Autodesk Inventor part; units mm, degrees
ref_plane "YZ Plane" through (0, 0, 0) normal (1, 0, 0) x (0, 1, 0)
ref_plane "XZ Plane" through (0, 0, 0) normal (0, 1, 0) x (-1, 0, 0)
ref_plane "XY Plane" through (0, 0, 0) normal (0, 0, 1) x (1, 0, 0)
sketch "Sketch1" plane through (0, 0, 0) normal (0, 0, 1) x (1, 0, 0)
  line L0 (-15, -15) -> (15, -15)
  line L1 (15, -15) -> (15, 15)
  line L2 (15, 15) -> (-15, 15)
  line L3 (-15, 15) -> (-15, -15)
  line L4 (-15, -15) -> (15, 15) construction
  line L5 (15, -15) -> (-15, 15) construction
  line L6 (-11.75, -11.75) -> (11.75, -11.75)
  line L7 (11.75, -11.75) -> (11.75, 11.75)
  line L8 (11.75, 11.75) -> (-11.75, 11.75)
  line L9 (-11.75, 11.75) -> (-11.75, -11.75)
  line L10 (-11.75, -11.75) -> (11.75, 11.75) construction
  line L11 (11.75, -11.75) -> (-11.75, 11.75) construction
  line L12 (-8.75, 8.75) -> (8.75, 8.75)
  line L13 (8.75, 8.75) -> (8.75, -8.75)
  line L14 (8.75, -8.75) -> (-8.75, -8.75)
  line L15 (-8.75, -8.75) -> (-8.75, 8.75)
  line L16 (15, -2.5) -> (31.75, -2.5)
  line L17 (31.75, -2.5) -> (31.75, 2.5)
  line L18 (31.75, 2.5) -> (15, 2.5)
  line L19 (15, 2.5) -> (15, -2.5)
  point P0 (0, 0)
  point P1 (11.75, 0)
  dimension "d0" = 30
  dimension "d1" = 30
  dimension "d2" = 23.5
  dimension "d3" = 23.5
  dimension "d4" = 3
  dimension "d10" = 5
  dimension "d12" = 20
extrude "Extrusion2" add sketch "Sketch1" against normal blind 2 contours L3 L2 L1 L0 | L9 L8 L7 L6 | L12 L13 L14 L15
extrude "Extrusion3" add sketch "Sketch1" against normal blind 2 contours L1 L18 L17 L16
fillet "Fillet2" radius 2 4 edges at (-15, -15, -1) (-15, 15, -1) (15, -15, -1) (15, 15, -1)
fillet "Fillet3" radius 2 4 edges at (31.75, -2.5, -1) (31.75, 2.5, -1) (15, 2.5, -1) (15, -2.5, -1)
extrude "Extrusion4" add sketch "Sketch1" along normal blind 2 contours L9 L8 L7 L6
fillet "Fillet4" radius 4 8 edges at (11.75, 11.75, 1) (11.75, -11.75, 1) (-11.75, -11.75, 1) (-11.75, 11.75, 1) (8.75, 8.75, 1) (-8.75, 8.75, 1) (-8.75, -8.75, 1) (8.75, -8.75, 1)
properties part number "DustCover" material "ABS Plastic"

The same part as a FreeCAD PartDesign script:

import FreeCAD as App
import Part
import Sketcher

V = App.Vector
Q = App.Units.Quantity


def edges_at(feature, points):
    """Names of the edges that pass closest to the given points."""
    edges = feature.Shape.Edges
    near = lambda p: min(range(len(edges)), key=lambda i: edges[i].distToShape(Part.Vertex(*p))[0])
    return sorted({f"Edge{near(p) + 1}" for p in points})

doc = App.newDocument("Part")
body = doc.addObject("PartDesign::Body", "Body")

# Sketch on XY plane
sketch1 = body.newObject("Sketcher::SketchObject", "Sketch")
sketch1.AttachmentSupport = (doc.getObject("XY_Plane"), [""])
sketch1.MapMode = "FlatFace"
sketch1.addGeometry(Part.LineSegment(V(-15, 15, 0), V(-15, -15, 0)), False)
sketch1.addGeometry(Part.LineSegment(V(-15, -15, 0), V(15, -15, 0)), False)
sketch1.addGeometry(Part.LineSegment(V(15, -15, 0), V(15, 15, 0)), False)
sketch1.addGeometry(Part.LineSegment(V(15, 15, 0), V(-15, 15, 0)), False)
sketch1.addConstraint(Sketcher.Constraint("Coincident", 0, 2, 1, 1))
sketch1.addConstraint(Sketcher.Constraint("Coincident", 1, 2, 2, 1))
sketch1.addConstraint(Sketcher.Constraint("Coincident", 2, 2, 3, 1))
sketch1.addConstraint(Sketcher.Constraint("Coincident", 3, 2, 0, 1))
sketch1.addConstraint(Sketcher.Constraint("Vertical", 0))
sketch1.addConstraint(Sketcher.Constraint("Horizontal", 1))
sketch1.addConstraint(Sketcher.Constraint("Vertical", 2))
sketch1.addConstraint(Sketcher.Constraint("Horizontal", 3))
sketch1.addConstraint(Sketcher.Constraint("Symmetric", 0, 2, 2, 2, -1, 1))
sketch1.addConstraint(Sketcher.Constraint("Equal", 3, 0))
sketch1.addConstraint(Sketcher.Constraint("DistanceX", 1, 1, 1, 2, Q("30 mm")))
pad1 = body.newObject("PartDesign::Pad", "Pad")
pad1.Profile = sketch1
pad1.Length = 2
pad1.Reversed = True

# Sketch on XY plane
sketch2 = body.newObject("Sketcher::SketchObject", "Sketch001")
sketch2.AttachmentSupport = (doc.getObject("XY_Plane"), [""])
sketch2.MapMode = "FlatFace"
sketch2.addGeometry(Part.LineSegment(V(15, 2, 0), V(15, -2, 0)), False)
sketch2.addGeometry(Part.LineSegment(V(15, -2, 0), V(32, -2, 0)), False)
sketch2.addGeometry(Part.LineSegment(V(32, -2, 0), V(32, 2, 0)), False)
sketch2.addGeometry(Part.LineSegment(V(32, 2, 0), V(15, 2, 0)), False)
sketch2.addConstraint(Sketcher.Constraint("Coincident", 0, 2, 1, 1))
sketch2.addConstraint(Sketcher.Constraint("Coincident", 1, 2, 2, 1))
sketch2.addConstraint(Sketcher.Constraint("Coincident", 2, 2, 3, 1))
sketch2.addConstraint(Sketcher.Constraint("Coincident", 3, 2, 0, 1))
sketch2.addConstraint(Sketcher.Constraint("Vertical", 0))
sketch2.addConstraint(Sketcher.Constraint("Horizontal", 1))
sketch2.addConstraint(Sketcher.Constraint("Vertical", 2))
sketch2.addConstraint(Sketcher.Constraint("Horizontal", 3))
sketch2.addConstraint(Sketcher.Constraint("DistanceY", 0, 2, 0, 1, Q("5 mm")))
sketch2.addConstraint(Sketcher.Constraint("DistanceX", -1, 1, 0, 2, Q("15 mm")))
sketch2.addConstraint(Sketcher.Constraint("DistanceX", 1, 1, 1, 2, Q("16.75 mm")))
sketch2.addConstraint(Sketcher.Constraint("DistanceY", 0, 2, -1, 1, Q("2.5 mm")))
pad2 = body.newObject("PartDesign::Pad", "Pad001")
pad2.Profile = sketch2
pad2.Length = 2
pad2.Reversed = True
doc.recompute()

fillet = body.newObject("PartDesign::Fillet", "Fillet")
fillet.Base = (pad2, edges_at(pad2, [
    (-15, -15, -1),
    (-15, 15, -1),
    (15, -15, -1),
    (15, 15, -1),
]))
fillet.Radius = 2
doc.recompute()

fillet2 = body.newObject("PartDesign::Fillet", "Fillet001")
fillet2.Base = (fillet, edges_at(fillet, [
    (31.75, -2.5, -1),
    (31.75, 2.5, -1),
    (15, 2.5, -1),
    (15, -2.5, -1),
]))
fillet2.Radius = 2

# Sketch on XY plane
sketch3 = body.newObject("Sketcher::SketchObject", "Sketch002")
sketch3.AttachmentSupport = (doc.getObject("XY_Plane"), [""])
sketch3.MapMode = "FlatFace"
sketch3.addGeometry(Part.LineSegment(V(-12, 12, 0), V(-12, -12, 0)), False)
sketch3.addGeometry(Part.LineSegment(V(-12, -12, 0), V(12, -12, 0)), False)
sketch3.addGeometry(Part.LineSegment(V(12, -12, 0), V(12, 12, 0)), False)
sketch3.addGeometry(Part.LineSegment(V(12, 12, 0), V(-12, 12, 0)), False)
sketch3.addGeometry(Part.LineSegment(V(-9, -9, 0), V(-9, 9, 0)), False)
sketch3.addGeometry(Part.LineSegment(V(-9, 9, 0), V(9, 9, 0)), False)
sketch3.addGeometry(Part.LineSegment(V(9, 9, 0), V(9, -9, 0)), False)
sketch3.addGeometry(Part.LineSegment(V(9, -9, 0), V(-9, -9, 0)), False)
sketch3.addConstraint(Sketcher.Constraint("Coincident", 0, 2, 1, 1))
sketch3.addConstraint(Sketcher.Constraint("Coincident", 1, 2, 2, 1))
sketch3.addConstraint(Sketcher.Constraint("Coincident", 2, 2, 3, 1))
sketch3.addConstraint(Sketcher.Constraint("Coincident", 3, 2, 0, 1))
sketch3.addConstraint(Sketcher.Constraint("Coincident", 4, 2, 5, 1))
sketch3.addConstraint(Sketcher.Constraint("Coincident", 5, 2, 6, 1))
sketch3.addConstraint(Sketcher.Constraint("Coincident", 6, 2, 7, 1))
sketch3.addConstraint(Sketcher.Constraint("Coincident", 7, 2, 4, 1))
sketch3.addConstraint(Sketcher.Constraint("Vertical", 0))
sketch3.addConstraint(Sketcher.Constraint("Horizontal", 1))
sketch3.addConstraint(Sketcher.Constraint("Vertical", 2))
sketch3.addConstraint(Sketcher.Constraint("Horizontal", 3))
sketch3.addConstraint(Sketcher.Constraint("Vertical", 4))
sketch3.addConstraint(Sketcher.Constraint("Horizontal", 5))
sketch3.addConstraint(Sketcher.Constraint("Vertical", 6))
sketch3.addConstraint(Sketcher.Constraint("Horizontal", 7))
sketch3.addConstraint(Sketcher.Constraint("Symmetric", 0, 2, 2, 2, -1, 1))
sketch3.addConstraint(Sketcher.Constraint("Symmetric", 4, 2, 6, 2, -1, 1))
sketch3.addConstraint(Sketcher.Constraint("Equal", 3, 0))
sketch3.addConstraint(Sketcher.Constraint("Equal", 7, 4))
sketch3.addConstraint(Sketcher.Constraint("DistanceX", 1, 1, 1, 2, Q("23.5 mm")))
sketch3.addConstraint(Sketcher.Constraint("DistanceX", 3, 2, 4, 2, Q("3 mm")))
pad3 = body.newObject("PartDesign::Pad", "Pad002")
pad3.Profile = sketch3
pad3.Length = 2
doc.recompute()

fillet3 = body.newObject("PartDesign::Fillet", "Fillet002")
fillet3.Base = (pad3, edges_at(pad3, [
    (11.75, 11.75, 1),
    (11.75, -11.75, 1),
    (-11.75, -11.75, 1),
    (-11.75, 11.75, 1),
    (8.75, 8.75, 1),
    (-8.75, 8.75, 1),
    (-8.75, -8.75, 1),
    (8.75, -8.75, 1),
]))
fillet3.Radius = 4

doc.recompute()
